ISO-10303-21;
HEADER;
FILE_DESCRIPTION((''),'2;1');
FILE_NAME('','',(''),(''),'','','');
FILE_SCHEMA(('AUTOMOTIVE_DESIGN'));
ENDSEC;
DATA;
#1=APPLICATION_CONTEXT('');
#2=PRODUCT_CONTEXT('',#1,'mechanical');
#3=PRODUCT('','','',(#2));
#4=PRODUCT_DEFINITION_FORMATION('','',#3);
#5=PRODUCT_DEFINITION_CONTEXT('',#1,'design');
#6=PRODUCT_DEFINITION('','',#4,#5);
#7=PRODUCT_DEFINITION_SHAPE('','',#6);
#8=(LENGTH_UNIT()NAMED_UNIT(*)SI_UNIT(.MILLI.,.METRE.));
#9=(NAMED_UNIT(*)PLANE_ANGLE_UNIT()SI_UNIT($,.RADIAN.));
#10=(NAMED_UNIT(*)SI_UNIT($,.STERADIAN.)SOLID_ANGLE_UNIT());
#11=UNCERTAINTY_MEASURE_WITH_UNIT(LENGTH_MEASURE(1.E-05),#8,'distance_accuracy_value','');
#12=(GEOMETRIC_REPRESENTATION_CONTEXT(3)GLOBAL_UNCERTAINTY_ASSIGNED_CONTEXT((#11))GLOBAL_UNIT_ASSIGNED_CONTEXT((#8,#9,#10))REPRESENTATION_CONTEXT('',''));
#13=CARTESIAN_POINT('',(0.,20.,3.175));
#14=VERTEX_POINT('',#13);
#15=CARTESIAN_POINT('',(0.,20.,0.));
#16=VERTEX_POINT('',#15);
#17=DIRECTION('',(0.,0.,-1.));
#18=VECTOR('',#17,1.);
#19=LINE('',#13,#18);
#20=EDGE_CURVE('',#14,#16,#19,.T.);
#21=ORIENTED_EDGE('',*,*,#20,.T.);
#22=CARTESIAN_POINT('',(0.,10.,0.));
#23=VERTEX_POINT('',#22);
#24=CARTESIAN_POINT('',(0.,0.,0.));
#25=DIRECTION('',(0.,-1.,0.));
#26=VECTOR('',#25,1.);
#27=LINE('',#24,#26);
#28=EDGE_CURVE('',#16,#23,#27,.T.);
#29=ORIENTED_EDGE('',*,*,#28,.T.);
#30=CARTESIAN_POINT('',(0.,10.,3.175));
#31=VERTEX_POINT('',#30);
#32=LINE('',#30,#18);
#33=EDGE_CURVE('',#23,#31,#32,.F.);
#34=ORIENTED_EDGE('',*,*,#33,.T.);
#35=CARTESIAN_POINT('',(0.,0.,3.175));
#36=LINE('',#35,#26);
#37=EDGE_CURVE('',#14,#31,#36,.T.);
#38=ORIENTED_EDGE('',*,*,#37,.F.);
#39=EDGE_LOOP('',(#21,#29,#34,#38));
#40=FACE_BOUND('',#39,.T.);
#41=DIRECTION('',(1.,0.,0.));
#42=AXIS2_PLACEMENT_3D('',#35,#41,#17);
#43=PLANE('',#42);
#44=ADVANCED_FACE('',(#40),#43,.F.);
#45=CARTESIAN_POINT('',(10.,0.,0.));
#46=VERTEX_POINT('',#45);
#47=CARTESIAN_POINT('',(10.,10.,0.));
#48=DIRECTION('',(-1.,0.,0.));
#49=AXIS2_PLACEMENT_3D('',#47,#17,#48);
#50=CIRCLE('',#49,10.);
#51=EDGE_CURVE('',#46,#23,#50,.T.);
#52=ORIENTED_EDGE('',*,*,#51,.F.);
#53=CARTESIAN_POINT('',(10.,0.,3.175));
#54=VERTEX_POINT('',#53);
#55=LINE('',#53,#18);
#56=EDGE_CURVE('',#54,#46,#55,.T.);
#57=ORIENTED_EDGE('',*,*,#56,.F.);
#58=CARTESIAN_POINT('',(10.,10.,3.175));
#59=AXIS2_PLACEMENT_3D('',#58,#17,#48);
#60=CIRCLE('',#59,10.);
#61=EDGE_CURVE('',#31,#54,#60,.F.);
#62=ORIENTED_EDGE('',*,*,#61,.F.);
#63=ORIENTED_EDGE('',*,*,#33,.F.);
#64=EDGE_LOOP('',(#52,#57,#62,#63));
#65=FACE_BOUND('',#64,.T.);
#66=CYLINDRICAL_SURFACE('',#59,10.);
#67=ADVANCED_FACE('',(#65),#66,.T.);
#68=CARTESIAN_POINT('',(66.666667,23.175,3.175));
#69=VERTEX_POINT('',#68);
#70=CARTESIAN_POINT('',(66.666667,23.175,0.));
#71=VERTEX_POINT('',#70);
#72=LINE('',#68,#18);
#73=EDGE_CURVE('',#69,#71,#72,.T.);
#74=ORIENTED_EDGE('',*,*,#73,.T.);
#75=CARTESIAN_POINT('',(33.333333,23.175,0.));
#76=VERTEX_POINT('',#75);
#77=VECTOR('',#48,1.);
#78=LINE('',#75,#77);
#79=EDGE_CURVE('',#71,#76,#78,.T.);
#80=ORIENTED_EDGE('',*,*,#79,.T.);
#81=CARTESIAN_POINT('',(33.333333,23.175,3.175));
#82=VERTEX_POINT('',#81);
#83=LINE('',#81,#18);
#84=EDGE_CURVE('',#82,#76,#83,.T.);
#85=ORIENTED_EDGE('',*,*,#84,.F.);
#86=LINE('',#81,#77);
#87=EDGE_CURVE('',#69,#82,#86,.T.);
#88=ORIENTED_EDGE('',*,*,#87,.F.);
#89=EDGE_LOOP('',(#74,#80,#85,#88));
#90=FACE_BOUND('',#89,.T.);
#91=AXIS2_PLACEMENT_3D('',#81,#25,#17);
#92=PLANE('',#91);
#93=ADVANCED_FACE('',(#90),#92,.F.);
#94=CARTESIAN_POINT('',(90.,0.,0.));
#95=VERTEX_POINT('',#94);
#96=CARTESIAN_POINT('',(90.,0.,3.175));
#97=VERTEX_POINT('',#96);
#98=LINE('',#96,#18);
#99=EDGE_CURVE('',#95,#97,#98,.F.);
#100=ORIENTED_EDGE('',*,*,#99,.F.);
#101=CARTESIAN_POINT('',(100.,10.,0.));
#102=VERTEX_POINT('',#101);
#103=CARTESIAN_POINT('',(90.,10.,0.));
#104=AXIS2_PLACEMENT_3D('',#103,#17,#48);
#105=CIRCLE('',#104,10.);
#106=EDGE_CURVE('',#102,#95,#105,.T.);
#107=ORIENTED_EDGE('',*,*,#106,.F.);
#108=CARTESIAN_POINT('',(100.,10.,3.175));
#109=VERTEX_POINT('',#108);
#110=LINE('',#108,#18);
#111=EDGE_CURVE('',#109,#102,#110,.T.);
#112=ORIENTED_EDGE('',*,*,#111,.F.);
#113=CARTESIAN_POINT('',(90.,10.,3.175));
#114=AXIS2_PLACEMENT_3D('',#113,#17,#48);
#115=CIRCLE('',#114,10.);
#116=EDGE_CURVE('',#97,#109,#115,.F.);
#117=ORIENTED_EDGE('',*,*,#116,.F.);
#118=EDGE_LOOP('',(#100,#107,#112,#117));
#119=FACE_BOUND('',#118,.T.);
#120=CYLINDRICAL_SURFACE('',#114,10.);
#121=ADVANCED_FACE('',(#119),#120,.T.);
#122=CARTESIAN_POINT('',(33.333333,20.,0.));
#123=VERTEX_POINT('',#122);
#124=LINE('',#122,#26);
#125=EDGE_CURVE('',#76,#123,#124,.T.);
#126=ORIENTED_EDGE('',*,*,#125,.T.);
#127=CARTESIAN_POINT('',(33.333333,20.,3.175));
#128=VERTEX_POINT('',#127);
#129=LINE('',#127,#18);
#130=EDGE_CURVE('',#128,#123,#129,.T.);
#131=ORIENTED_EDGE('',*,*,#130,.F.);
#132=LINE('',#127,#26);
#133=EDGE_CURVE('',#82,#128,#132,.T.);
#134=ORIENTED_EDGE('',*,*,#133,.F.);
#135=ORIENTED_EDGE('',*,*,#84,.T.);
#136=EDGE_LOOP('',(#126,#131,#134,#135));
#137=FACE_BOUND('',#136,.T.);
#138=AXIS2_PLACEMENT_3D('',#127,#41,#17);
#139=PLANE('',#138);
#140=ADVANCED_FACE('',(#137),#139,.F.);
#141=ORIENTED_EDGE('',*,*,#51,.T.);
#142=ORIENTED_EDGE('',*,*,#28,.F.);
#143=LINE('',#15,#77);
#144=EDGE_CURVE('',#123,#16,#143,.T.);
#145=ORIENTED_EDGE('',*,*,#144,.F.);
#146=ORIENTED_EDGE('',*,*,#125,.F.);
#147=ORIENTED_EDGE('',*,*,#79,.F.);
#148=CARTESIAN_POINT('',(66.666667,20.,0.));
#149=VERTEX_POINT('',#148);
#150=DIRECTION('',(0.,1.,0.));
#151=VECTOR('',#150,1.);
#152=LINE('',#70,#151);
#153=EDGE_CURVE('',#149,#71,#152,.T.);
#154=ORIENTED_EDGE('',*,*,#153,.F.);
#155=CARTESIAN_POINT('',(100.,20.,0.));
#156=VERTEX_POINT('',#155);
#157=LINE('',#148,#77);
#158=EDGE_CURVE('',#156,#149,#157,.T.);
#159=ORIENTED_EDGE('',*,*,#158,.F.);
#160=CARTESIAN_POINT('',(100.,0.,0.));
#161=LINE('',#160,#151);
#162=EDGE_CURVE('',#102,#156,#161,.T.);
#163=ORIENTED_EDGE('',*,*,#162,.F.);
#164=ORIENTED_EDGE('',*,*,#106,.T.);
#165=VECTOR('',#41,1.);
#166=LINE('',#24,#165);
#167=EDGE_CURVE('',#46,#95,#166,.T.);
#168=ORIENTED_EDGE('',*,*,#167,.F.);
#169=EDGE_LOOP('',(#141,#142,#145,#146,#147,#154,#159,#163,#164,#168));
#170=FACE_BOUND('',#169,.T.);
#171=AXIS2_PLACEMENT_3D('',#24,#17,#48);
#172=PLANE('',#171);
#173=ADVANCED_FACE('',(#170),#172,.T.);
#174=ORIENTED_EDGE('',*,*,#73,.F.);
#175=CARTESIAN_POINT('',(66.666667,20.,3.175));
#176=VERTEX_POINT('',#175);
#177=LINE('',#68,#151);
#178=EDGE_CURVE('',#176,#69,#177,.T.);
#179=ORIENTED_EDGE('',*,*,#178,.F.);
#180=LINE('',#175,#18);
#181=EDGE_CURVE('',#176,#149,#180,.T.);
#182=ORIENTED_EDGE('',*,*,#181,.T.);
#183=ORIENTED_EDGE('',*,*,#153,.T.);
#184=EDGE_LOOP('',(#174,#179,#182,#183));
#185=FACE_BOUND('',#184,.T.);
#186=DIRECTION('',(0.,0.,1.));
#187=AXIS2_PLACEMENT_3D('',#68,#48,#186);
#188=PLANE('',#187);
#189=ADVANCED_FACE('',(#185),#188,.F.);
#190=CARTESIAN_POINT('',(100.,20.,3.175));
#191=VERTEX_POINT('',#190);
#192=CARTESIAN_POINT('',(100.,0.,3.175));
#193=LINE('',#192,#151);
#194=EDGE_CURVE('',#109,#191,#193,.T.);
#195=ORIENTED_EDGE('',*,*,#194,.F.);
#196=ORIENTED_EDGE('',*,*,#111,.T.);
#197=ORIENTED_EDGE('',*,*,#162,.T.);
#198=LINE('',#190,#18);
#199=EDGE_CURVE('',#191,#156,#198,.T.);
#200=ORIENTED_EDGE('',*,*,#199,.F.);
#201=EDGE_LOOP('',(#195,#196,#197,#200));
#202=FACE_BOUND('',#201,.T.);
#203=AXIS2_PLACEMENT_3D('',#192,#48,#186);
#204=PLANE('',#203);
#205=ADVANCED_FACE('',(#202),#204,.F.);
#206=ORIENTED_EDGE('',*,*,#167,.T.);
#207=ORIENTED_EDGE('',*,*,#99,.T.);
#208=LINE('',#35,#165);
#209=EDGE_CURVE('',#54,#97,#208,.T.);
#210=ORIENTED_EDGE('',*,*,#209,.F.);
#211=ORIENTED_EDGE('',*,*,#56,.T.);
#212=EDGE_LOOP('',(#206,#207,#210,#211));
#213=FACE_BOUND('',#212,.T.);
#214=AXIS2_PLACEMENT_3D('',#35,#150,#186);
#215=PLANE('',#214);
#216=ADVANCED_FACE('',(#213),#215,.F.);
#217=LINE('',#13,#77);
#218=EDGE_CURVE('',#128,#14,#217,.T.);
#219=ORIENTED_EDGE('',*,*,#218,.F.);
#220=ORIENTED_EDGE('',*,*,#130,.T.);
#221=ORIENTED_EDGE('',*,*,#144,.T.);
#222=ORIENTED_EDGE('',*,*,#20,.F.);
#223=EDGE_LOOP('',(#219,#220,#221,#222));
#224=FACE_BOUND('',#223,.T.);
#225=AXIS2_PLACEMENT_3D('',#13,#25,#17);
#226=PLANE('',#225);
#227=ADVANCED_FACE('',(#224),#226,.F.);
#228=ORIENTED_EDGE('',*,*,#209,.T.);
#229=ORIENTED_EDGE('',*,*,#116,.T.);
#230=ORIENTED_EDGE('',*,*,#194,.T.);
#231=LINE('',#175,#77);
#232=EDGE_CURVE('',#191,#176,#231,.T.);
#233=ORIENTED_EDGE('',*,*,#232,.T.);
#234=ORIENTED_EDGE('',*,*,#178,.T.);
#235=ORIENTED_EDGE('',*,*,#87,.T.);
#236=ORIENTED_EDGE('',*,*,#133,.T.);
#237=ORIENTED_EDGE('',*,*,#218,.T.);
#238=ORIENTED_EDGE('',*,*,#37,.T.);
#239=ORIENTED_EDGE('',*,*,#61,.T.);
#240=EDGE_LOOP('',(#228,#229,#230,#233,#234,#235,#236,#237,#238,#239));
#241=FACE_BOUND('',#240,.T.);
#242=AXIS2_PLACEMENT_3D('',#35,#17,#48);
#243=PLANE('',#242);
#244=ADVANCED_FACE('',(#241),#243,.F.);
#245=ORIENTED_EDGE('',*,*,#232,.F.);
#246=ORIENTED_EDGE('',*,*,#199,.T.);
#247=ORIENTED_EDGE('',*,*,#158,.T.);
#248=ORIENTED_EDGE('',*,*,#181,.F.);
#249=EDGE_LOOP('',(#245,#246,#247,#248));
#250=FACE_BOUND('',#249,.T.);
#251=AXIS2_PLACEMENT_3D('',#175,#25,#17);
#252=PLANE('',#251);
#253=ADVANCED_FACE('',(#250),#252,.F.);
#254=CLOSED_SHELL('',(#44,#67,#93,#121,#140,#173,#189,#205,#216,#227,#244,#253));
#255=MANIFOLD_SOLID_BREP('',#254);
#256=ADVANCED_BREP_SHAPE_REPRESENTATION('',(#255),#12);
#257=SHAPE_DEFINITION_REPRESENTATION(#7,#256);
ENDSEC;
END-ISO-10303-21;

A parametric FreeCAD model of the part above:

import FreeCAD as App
import Part
import Sketcher

V = App.Vector


def edges_at(feature, points):
    """Names of the edges that pass closest to the given points."""
    edges = feature.Shape.Edges
    near = lambda p: min(range(len(edges)), key=lambda i: edges[i].distToShape(Part.Vertex(*p))[0])
    return sorted({f"Edge{near(p) + 1}" for p in points})


def add_polygon(sketch, points):
    """Adds a closed chain of lines whose ends are joined by coincident constraints."""
    first, n = sketch.GeometryCount, len(points)
    for a, b in zip(points, points[1:] + points[:1]):
        sketch.addGeometry(Part.LineSegment(App.Vector(*a, 0), App.Vector(*b, 0)), False)
    for i in range(n):
        sketch.addConstraint(Sketcher.Constraint("Coincident", first + i, 2, first + (i + 1) % n, 1))

doc = App.newDocument("Part")
body = doc.addObject("PartDesign::Body", "Body")

# Sketch on XY plane
sketch1 = doc.addObject("Sketcher::SketchObject", "Sketch")
body.addObject(sketch1)
sketch1.AttachmentSupport = (doc.XY_Plane, [""])
sketch1.MapMode = "FlatFace"
add_polygon(sketch1, [(33.3, 20), (0, 20), (0, 0), (100, 0), (100, 20), (66.7, 20), (66.7, 23.2), (33.3, 23.2)])  # lines 0-7
sketch1.addConstraint(Sketcher.Constraint("Horizontal", 0))
sketch1.addConstraint(Sketcher.Constraint("Vertical", 1))
sketch1.addConstraint(Sketcher.Constraint("Horizontal", 2))
sketch1.addConstraint(Sketcher.Constraint("Vertical", 3))
sketch1.addConstraint(Sketcher.Constraint("Horizontal", 4))
sketch1.addConstraint(Sketcher.Constraint("Vertical", 5))
sketch1.addConstraint(Sketcher.Constraint("Horizontal", 6))
sketch1.addConstraint(Sketcher.Constraint("Vertical", 7))
sketch1.addConstraint(Sketcher.Constraint("Coincident", 1, 2, -1, 1))
sketch1.addConstraint(Sketcher.Constraint("Horizontal", 0, 2, 3, 2))
sketch1.addConstraint(Sketcher.Constraint("Equal", 0, 4))
sketch1.addConstraint(Sketcher.Constraint("Equal", 4, 6))
sketch1.addConstraint(Sketcher.Constraint("DistanceX", 2, 1, 2, 2, 100.0))
sketch1.addConstraint(Sketcher.Constraint("DistanceY", 1, 2, 1, 1, 20.0))
sketch1.addConstraint(Sketcher.Constraint("DistanceY", 5, 1, 5, 2, 3.175))
pad1 = doc.addObject("PartDesign::Pad", "Pad")
body.addObject(pad1)
pad1.Profile = sketch1
pad1.Length = 3.175
doc.recompute()

fillet = doc.addObject("PartDesign::Fillet", "Fillet")
body.addObject(fillet)
fillet.Base = (pad1, edges_at(pad1, [(100, 0, 1.587), (0, 0, 1.587)]))
fillet.Radius = 10

doc.recompute()
